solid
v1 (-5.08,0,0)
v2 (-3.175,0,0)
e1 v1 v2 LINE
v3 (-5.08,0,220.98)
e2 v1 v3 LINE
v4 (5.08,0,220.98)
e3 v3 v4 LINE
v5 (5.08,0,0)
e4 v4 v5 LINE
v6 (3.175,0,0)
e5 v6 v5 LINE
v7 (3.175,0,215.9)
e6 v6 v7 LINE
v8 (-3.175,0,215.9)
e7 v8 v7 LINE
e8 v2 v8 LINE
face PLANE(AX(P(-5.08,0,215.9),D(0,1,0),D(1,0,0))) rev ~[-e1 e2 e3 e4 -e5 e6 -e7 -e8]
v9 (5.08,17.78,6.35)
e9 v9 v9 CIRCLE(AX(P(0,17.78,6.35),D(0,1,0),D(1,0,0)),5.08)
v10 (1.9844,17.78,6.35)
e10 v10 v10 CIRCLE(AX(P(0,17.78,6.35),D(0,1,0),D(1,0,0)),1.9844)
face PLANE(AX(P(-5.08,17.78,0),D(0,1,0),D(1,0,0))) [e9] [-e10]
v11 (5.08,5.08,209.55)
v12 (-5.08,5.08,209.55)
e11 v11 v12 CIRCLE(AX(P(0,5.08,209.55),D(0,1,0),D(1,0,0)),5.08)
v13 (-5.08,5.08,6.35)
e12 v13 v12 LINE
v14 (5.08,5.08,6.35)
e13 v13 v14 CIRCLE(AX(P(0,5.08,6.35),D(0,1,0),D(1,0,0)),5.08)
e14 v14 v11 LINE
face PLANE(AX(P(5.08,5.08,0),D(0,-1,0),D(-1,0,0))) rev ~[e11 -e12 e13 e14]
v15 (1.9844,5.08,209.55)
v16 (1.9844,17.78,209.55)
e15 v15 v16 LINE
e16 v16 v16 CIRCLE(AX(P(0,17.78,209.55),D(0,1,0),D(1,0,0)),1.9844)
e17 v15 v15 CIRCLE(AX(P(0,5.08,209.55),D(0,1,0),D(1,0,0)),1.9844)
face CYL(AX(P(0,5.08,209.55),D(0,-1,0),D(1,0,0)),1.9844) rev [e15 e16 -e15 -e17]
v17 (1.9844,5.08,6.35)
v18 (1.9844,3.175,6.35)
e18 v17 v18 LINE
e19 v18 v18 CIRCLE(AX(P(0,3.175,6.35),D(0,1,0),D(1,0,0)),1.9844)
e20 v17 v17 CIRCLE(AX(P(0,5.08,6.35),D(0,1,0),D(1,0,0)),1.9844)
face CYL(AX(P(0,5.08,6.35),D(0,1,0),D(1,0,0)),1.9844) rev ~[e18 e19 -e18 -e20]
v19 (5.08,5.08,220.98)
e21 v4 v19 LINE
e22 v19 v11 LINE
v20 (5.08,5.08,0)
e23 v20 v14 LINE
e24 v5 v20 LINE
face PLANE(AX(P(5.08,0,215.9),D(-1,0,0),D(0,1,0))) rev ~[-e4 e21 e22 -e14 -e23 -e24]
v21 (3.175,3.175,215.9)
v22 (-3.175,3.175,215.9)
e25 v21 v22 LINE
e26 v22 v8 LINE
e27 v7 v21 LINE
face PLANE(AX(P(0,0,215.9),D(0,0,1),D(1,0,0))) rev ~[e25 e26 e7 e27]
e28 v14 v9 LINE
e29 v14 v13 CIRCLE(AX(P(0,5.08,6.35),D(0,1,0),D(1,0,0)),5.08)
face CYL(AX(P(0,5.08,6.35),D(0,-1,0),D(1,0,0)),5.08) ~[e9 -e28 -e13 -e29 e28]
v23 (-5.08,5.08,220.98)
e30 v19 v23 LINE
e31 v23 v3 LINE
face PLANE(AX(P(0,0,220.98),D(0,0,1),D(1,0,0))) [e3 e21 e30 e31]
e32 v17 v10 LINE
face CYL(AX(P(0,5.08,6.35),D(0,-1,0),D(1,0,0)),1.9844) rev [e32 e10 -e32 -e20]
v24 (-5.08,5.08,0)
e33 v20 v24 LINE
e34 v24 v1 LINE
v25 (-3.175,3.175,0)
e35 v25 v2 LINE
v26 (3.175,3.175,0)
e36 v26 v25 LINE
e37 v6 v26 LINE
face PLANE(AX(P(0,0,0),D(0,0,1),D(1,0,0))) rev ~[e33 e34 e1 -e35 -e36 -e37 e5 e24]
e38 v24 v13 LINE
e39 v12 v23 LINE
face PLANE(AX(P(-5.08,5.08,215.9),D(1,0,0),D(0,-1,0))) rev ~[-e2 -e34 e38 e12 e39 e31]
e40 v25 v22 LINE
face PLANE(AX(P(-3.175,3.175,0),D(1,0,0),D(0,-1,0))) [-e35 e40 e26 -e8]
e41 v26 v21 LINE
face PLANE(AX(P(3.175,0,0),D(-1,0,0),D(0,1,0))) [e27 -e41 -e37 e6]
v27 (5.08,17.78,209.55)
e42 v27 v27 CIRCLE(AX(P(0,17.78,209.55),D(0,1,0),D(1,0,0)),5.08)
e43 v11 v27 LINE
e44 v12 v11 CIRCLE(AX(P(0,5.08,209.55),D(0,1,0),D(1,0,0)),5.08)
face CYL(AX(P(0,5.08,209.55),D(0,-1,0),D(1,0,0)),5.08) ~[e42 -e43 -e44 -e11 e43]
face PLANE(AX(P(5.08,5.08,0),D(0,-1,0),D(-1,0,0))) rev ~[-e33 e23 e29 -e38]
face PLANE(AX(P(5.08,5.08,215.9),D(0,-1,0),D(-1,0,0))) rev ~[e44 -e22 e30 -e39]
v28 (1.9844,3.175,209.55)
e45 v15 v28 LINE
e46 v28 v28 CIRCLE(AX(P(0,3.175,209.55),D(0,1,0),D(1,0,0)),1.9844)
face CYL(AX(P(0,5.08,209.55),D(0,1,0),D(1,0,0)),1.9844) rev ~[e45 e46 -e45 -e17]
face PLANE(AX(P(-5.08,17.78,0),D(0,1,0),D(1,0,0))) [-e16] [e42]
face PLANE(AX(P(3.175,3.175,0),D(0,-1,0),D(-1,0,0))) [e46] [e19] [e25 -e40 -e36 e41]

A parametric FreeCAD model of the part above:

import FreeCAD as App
import Part
import Sketcher
Q = App.Units.Quantity

doc = App.newDocument("Part")
body = doc.addObject("PartDesign::Body", "Body")

# Sketch on XY plane
sketch1 = body.newObject("Sketcher::SketchObject", "Sketch")
sketch1.AttachmentSupport = (doc.getObject("XY_Plane"), [""])
sketch1.MapMode = "FlatFace"
sketch1.addGeometry([
    Part.LineSegment(App.Vector(3.2, 3.2, 0), App.Vector(3.2, 0, 0)),  # 0
    Part.LineSegment(App.Vector(3.2, 0, 0), App.Vector(5.1, 0, 0)),  # 1
    Part.LineSegment(App.Vector(5.1, 0, 0), App.Vector(5.1, 5.1, 0)),  # 2
    Part.LineSegment(App.Vector(5.1, 5.1, 0), App.Vector(-5.1, 5.1, 0)),  # 3
    Part.LineSegment(App.Vector(-5.1, 5.1, 0), App.Vector(-5.1, 0, 0)),  # 4
    Part.LineSegment(App.Vector(-5.1, 0, 0), App.Vector(-3.2, 0, 0)),  # 5
    Part.LineSegment(App.Vector(-3.2, 0, 0), App.Vector(-3.2, 3.2, 0)),  # 6
    Part.LineSegment(App.Vector(-3.2, 3.2, 0), App.Vector(3.2, 3.2, 0)),  # 7
], False)
sketch1.addConstraint([
    Sketcher.Constraint("Coincident", 0, 2, 1, 1),
    Sketcher.Constraint("Coincident", 1, 2, 2, 1),
    Sketcher.Constraint("Coincident", 2, 2, 3, 1),
    Sketcher.Constraint("Coincident", 3, 2, 4, 1),
    Sketcher.Constraint("Coincident", 4, 2, 5, 1),
    Sketcher.Constraint("Coincident", 5, 2, 6, 1),
    Sketcher.Constraint("Coincident", 6, 2, 7, 1),
    Sketcher.Constraint("Coincident", 7, 2, 0, 1),
    Sketcher.Constraint("Vertical", 0),
    Sketcher.Constraint("Horizontal", 1),
    Sketcher.Constraint("Vertical", 2),
    Sketcher.Constraint("Horizontal", 3),
    Sketcher.Constraint("Vertical", 4),
    Sketcher.Constraint("Horizontal", 5),
    Sketcher.Constraint("Vertical", 6),
    Sketcher.Constraint("Horizontal", 7),
    Sketcher.Constraint("Symmetric", 1, 2, 4, 2, -1, 1),
    Sketcher.Constraint("Symmetric", 0, 2, 5, 2, -2),
    Sketcher.Constraint("DistanceX", 3, 2, 3, 1, Q("0.4 in")),
    Sketcher.Constraint("DistanceY", 2, 1, 2, 2, Q("0.2 in")),
    Sketcher.Constraint("DistanceX", 7, 1, 7, 2, Q("0.25 in")),
    Sketcher.Constraint("DistanceY", 0, 2, 0, 1, Q("0.125 in")),
])
pad1 = body.newObject("PartDesign::Pad", "Pad")
pad1.Profile = sketch1
pad1.Length = Q("8.5 in")

# Sketch on XZ plane
sketch2 = body.newObject("Sketcher::SketchObject", "Sketch001")
sketch2.AttachmentSupport = (doc.getObject("XZ_Plane"), [""])
sketch2.MapMode = "FlatFace"
sketch2.AttachmentOffset = App.Placement(App.Vector(0, 0, -0.2 * 25.4), App.Rotation())
sketch2.addGeometry([
    Part.Circle(App.Vector(0, 6.3, 0), App.Vector(0, 0, 1), 2),
    Part.Circle(App.Vector(0, 209.6, 0), App.Vector(0, 0, 1), 2),
], False)
sketch2.addConstraint([
    Sketcher.Constraint("Equal", 0, 1),
    Sketcher.Constraint("PointOnObject", 0, 3, -2),
    Sketcher.Constraint("PointOnObject", 1, 3, -2),
    Sketcher.Constraint("Diameter", 0, Q("0.156252 in")),
    Sketcher.Constraint("DistanceY", 0, 3, 1, 3, Q("8 in")),
    Sketcher.Constraint("DistanceY", -1, 1, 0, 3, Q("0.25 in")),
])
pocket1 = body.newObject("PartDesign::Pocket", "Pocket")
pocket1.Profile = sketch2
pocket1.Length = Q("8.5 in")
pocket1.Reversed = True

# Sketch on XZ plane
sketch3 = body.newObject("Sketcher::SketchObject", "Sketch002")
sketch3.AttachmentSupport = (doc.getObject("XZ_Plane"), [""])
sketch3.MapMode = "FlatFace"
sketch3.AttachmentOffset = App.Placement(App.Vector(0, 0, -0.2 * 25.4), App.Rotation())
sketch3.addGeometry([
    Part.Circle(App.Vector(0, 209.6, 0), App.Vector(0, 0, 1), 5.1),
    Part.Circle(App.Vector(0, 209.6, 0), App.Vector(0, 0, 1), 2),
    Part.Circle(App.Vector(0, 6.3, 0), App.Vector(0, 0, 1), 5.1),
    Part.Circle(App.Vector(0, 6.3, 0), App.Vector(0, 0, 1), 2),
], False)
sketch3.addConstraint([
    Sketcher.Constraint("Coincident", 1, 3, 0, 3),
    Sketcher.Constraint("Coincident", 3, 3, 2, 3),
    Sketcher.Constraint("Equal", 0, 2),
    Sketcher.Constraint("Equal", 1, 3),
    Sketcher.Constraint("PointOnObject", 0, 3, -2),
    Sketcher.Constraint("PointOnObject", 2, 3, -2),
    Sketcher.Constraint("Diameter", 0, Q("0.4 in")),
    Sketcher.Constraint("Diameter", 1, Q("0.156252 in")),
    Sketcher.Constraint("DistanceY", 2, 3, 0, 3, Q("8 in")),
    Sketcher.Constraint("DistanceY", -1, 1, 0, 3, Q("8.25 in")),
])
pad2 = body.newObject("PartDesign::Pad", "Pad001")
pad2.Profile = sketch3
pad2.Length = Q("0.5 in")
pad2.Reversed = True

# Sketch on XY plane
sketch4 = body.newObject("Sketcher::SketchObject", "Sketch003")
sketch4.AttachmentSupport = (doc.getObject("XY_Plane"), [""])
sketch4.MapMode = "FlatFace"
sketch4.AttachmentOffset = App.Placement(App.Vector(0, 0, 8.5 * 25.4), App.Rotation())
sketch4.addGeometry([
    Part.LineSegment(App.Vector(5, 5, 0), App.Vector(-5, 5, 0)),
    Part.LineSegment(App.Vector(-5, 5, 0), App.Vector(-5, 0, 0)),
    Part.LineSegment(App.Vector(-5, 0, 0), App.Vector(5, 0, 0)),
    Part.LineSegment(App.Vector(5, 0, 0), App.Vector(5, 5, 0)),
], False)
sketch4.addConstraint([
    Sketcher.Constraint("Coincident", 0, 2, 1, 1),
    Sketcher.Constraint("Coincident", 1, 2, 2, 1),
    Sketcher.Constraint("Coincident", 2, 2, 3, 1),
    Sketcher.Constraint("Coincident", 3, 2, 0, 1),
    Sketcher.Constraint("Horizontal", 0),
    Sketcher.Constraint("Vertical", 1),
    Sketcher.Constraint("Horizontal", 2),
    Sketcher.Constraint("Vertical", 3),
    Sketcher.Constraint("Symmetric", 1, 2, 2, 2, -1, 1),
    Sketcher.Constraint("DistanceX", 0, 2, 0, 1, Q("0.4 in")),
    Sketcher.Constraint("DistanceY", 1, 2, 1, 1, Q("0.2 in")),
])
pad3 = body.newObject("PartDesign::Pad", "Pad002")
pad3.Profile = sketch4
pad3.Length = Q("0.2 in")

doc.recompute()
